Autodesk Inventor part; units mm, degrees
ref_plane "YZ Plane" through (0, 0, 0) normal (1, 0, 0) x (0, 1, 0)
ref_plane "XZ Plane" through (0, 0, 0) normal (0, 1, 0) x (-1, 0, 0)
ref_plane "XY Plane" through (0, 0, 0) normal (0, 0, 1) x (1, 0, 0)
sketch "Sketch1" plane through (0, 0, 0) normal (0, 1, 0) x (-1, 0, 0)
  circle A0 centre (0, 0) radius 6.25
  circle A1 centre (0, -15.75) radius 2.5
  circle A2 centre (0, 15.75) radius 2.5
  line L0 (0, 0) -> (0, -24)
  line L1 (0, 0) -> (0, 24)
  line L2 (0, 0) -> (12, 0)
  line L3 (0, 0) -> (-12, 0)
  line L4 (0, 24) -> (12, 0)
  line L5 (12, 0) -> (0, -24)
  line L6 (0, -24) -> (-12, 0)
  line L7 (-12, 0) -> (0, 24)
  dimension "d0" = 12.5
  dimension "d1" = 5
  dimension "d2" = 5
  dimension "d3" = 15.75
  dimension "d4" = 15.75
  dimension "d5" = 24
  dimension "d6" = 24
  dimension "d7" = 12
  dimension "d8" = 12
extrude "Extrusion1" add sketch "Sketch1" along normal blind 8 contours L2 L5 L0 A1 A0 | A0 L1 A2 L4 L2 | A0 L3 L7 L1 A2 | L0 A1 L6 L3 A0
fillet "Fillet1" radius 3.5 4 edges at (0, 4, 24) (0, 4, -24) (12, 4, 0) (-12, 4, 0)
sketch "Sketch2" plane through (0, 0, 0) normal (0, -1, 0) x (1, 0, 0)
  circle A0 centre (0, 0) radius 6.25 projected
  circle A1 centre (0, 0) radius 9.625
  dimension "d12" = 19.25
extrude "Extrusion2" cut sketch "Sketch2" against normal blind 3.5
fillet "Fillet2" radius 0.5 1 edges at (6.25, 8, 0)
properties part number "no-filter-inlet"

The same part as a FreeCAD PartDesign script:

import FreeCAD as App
import Part
import Sketcher

V = App.Vector


def edges_at(feature, points):
    """Names of the edges that pass closest to the given points."""
    edges = feature.Shape.Edges
    near = lambda p: min(range(len(edges)), key=lambda i: edges[i].distToShape(Part.Vertex(*p))[0])
    return sorted({f"Edge{near(p) + 1}" for p in points})


def add_polygon(sketch, points):
    """Adds a closed chain of lines whose ends are joined by coincident constraints."""
    first, n = sketch.GeometryCount, len(points)
    for a, b in zip(points, points[1:] + points[:1]):
        sketch.addGeometry(Part.LineSegment(App.Vector(*a, 0), App.Vector(*b, 0)), False)
    for i in range(n):
        sketch.addConstraint(Sketcher.Constraint("Coincident", first + i, 2, first + (i + 1) % n, 1))

doc = App.newDocument("Part")
body = doc.addObject("PartDesign::Body", "Body")

sketch1 = body.newObject("Sketcher::SketchObject", "Sketch")
sketch1.AttachmentSupport = (doc.getObject("XZ_Plane"), [""])
sketch1.MapMode = "FlatFace"
add_polygon(sketch1, [(0, -24), (-12, 0), (0, 24), (12, 0)])
sketch1.addGeometry(Part.Circle(V(0, -15.8, 0), V(0, 0, 1), 2.5), False)
sketch1.addGeometry(Part.Circle(V(0, 0, 0), V(0, 0, 1), 6.2), False)
sketch1.addGeometry(Part.Circle(V(0, 15.8, 0), V(0, 0, 1), 2.5), False)
sketch1.addConstraint([
    Sketcher.Constraint("Coincident", 5, 3, -1, 1),
    Sketcher.Constraint("Equal", 4, 6),
    Sketcher.Constraint("Symmetric", 4, 3, 6, 3, -1, 1),
    Sketcher.Constraint("Symmetric", 0, 2, 2, 2, -1, 1),
    Sketcher.Constraint("Symmetric", 1, 2, 3, 2, -1, 1),
    Sketcher.Constraint("PointOnObject", 4, 3, -2),
    Sketcher.Constraint("PointOnObject", 0, 2, -1),
    Sketcher.Constraint("PointOnObject", 1, 2, -2),
    Sketcher.Constraint("Diameter", 4, 5.0),
    Sketcher.Constraint("Diameter", 5, 12.5),
    Sketcher.Constraint("DistanceX", 0, 2, -1, 1, 12.0),
    Sketcher.Constraint("DistanceY", -1, 1, 1, 2, 24.0),
    Sketcher.Constraint("DistanceY", 4, 3, -1, 1, 15.75),
])
pad1 = body.newObject("PartDesign::Pad", "Pad")
pad1.Profile = sketch1
pad1.Length = 8
pad1.Reversed = True
doc.recompute()

fillet = body.newObject("PartDesign::Fillet", "Fillet")
fillet.Base = (pad1, edges_at(pad1, [
    (0, 4, 24),
    (0, 4, -24),
    (12, 4, 0),
    (-12, 4, 0),
]))
fillet.Radius = 3.5

sketch2 = body.newObject("Sketcher::SketchObject", "Sketch001")
sketch2.AttachmentSupport = (doc.getObject("XZ_Plane"), [""])
sketch2.MapMode = "FlatFace"
sketch2.addGeometry([
    Part.Circle(V(0, 0, 0), V(0, 0, 1), 10),
    Part.Circle(V(0, 0, 0), V(0, 0, 1), 6),
], False)
sketch2.addConstraint([
    Sketcher.Constraint("Coincident", 0, 3, -1, 1),
    Sketcher.Constraint("Coincident", 1, 3, -1, 1),
    Sketcher.Constraint("Diameter", 0, 19.25),
    Sketcher.Constraint("Diameter", 1, 12.5),
])
pocket1 = body.newObject("PartDesign::Pocket", "Pocket")
pocket1.Profile = sketch2
pocket1.Length = 3.5
doc.recompute()

fillet2 = body.newObject("PartDesign::Fillet", "Fillet001")
fillet2.Base = (pocket1, edges_at(pocket1, [(6.25, 8, 0)]))
fillet2.Radius = 0.5

doc.recompute()
